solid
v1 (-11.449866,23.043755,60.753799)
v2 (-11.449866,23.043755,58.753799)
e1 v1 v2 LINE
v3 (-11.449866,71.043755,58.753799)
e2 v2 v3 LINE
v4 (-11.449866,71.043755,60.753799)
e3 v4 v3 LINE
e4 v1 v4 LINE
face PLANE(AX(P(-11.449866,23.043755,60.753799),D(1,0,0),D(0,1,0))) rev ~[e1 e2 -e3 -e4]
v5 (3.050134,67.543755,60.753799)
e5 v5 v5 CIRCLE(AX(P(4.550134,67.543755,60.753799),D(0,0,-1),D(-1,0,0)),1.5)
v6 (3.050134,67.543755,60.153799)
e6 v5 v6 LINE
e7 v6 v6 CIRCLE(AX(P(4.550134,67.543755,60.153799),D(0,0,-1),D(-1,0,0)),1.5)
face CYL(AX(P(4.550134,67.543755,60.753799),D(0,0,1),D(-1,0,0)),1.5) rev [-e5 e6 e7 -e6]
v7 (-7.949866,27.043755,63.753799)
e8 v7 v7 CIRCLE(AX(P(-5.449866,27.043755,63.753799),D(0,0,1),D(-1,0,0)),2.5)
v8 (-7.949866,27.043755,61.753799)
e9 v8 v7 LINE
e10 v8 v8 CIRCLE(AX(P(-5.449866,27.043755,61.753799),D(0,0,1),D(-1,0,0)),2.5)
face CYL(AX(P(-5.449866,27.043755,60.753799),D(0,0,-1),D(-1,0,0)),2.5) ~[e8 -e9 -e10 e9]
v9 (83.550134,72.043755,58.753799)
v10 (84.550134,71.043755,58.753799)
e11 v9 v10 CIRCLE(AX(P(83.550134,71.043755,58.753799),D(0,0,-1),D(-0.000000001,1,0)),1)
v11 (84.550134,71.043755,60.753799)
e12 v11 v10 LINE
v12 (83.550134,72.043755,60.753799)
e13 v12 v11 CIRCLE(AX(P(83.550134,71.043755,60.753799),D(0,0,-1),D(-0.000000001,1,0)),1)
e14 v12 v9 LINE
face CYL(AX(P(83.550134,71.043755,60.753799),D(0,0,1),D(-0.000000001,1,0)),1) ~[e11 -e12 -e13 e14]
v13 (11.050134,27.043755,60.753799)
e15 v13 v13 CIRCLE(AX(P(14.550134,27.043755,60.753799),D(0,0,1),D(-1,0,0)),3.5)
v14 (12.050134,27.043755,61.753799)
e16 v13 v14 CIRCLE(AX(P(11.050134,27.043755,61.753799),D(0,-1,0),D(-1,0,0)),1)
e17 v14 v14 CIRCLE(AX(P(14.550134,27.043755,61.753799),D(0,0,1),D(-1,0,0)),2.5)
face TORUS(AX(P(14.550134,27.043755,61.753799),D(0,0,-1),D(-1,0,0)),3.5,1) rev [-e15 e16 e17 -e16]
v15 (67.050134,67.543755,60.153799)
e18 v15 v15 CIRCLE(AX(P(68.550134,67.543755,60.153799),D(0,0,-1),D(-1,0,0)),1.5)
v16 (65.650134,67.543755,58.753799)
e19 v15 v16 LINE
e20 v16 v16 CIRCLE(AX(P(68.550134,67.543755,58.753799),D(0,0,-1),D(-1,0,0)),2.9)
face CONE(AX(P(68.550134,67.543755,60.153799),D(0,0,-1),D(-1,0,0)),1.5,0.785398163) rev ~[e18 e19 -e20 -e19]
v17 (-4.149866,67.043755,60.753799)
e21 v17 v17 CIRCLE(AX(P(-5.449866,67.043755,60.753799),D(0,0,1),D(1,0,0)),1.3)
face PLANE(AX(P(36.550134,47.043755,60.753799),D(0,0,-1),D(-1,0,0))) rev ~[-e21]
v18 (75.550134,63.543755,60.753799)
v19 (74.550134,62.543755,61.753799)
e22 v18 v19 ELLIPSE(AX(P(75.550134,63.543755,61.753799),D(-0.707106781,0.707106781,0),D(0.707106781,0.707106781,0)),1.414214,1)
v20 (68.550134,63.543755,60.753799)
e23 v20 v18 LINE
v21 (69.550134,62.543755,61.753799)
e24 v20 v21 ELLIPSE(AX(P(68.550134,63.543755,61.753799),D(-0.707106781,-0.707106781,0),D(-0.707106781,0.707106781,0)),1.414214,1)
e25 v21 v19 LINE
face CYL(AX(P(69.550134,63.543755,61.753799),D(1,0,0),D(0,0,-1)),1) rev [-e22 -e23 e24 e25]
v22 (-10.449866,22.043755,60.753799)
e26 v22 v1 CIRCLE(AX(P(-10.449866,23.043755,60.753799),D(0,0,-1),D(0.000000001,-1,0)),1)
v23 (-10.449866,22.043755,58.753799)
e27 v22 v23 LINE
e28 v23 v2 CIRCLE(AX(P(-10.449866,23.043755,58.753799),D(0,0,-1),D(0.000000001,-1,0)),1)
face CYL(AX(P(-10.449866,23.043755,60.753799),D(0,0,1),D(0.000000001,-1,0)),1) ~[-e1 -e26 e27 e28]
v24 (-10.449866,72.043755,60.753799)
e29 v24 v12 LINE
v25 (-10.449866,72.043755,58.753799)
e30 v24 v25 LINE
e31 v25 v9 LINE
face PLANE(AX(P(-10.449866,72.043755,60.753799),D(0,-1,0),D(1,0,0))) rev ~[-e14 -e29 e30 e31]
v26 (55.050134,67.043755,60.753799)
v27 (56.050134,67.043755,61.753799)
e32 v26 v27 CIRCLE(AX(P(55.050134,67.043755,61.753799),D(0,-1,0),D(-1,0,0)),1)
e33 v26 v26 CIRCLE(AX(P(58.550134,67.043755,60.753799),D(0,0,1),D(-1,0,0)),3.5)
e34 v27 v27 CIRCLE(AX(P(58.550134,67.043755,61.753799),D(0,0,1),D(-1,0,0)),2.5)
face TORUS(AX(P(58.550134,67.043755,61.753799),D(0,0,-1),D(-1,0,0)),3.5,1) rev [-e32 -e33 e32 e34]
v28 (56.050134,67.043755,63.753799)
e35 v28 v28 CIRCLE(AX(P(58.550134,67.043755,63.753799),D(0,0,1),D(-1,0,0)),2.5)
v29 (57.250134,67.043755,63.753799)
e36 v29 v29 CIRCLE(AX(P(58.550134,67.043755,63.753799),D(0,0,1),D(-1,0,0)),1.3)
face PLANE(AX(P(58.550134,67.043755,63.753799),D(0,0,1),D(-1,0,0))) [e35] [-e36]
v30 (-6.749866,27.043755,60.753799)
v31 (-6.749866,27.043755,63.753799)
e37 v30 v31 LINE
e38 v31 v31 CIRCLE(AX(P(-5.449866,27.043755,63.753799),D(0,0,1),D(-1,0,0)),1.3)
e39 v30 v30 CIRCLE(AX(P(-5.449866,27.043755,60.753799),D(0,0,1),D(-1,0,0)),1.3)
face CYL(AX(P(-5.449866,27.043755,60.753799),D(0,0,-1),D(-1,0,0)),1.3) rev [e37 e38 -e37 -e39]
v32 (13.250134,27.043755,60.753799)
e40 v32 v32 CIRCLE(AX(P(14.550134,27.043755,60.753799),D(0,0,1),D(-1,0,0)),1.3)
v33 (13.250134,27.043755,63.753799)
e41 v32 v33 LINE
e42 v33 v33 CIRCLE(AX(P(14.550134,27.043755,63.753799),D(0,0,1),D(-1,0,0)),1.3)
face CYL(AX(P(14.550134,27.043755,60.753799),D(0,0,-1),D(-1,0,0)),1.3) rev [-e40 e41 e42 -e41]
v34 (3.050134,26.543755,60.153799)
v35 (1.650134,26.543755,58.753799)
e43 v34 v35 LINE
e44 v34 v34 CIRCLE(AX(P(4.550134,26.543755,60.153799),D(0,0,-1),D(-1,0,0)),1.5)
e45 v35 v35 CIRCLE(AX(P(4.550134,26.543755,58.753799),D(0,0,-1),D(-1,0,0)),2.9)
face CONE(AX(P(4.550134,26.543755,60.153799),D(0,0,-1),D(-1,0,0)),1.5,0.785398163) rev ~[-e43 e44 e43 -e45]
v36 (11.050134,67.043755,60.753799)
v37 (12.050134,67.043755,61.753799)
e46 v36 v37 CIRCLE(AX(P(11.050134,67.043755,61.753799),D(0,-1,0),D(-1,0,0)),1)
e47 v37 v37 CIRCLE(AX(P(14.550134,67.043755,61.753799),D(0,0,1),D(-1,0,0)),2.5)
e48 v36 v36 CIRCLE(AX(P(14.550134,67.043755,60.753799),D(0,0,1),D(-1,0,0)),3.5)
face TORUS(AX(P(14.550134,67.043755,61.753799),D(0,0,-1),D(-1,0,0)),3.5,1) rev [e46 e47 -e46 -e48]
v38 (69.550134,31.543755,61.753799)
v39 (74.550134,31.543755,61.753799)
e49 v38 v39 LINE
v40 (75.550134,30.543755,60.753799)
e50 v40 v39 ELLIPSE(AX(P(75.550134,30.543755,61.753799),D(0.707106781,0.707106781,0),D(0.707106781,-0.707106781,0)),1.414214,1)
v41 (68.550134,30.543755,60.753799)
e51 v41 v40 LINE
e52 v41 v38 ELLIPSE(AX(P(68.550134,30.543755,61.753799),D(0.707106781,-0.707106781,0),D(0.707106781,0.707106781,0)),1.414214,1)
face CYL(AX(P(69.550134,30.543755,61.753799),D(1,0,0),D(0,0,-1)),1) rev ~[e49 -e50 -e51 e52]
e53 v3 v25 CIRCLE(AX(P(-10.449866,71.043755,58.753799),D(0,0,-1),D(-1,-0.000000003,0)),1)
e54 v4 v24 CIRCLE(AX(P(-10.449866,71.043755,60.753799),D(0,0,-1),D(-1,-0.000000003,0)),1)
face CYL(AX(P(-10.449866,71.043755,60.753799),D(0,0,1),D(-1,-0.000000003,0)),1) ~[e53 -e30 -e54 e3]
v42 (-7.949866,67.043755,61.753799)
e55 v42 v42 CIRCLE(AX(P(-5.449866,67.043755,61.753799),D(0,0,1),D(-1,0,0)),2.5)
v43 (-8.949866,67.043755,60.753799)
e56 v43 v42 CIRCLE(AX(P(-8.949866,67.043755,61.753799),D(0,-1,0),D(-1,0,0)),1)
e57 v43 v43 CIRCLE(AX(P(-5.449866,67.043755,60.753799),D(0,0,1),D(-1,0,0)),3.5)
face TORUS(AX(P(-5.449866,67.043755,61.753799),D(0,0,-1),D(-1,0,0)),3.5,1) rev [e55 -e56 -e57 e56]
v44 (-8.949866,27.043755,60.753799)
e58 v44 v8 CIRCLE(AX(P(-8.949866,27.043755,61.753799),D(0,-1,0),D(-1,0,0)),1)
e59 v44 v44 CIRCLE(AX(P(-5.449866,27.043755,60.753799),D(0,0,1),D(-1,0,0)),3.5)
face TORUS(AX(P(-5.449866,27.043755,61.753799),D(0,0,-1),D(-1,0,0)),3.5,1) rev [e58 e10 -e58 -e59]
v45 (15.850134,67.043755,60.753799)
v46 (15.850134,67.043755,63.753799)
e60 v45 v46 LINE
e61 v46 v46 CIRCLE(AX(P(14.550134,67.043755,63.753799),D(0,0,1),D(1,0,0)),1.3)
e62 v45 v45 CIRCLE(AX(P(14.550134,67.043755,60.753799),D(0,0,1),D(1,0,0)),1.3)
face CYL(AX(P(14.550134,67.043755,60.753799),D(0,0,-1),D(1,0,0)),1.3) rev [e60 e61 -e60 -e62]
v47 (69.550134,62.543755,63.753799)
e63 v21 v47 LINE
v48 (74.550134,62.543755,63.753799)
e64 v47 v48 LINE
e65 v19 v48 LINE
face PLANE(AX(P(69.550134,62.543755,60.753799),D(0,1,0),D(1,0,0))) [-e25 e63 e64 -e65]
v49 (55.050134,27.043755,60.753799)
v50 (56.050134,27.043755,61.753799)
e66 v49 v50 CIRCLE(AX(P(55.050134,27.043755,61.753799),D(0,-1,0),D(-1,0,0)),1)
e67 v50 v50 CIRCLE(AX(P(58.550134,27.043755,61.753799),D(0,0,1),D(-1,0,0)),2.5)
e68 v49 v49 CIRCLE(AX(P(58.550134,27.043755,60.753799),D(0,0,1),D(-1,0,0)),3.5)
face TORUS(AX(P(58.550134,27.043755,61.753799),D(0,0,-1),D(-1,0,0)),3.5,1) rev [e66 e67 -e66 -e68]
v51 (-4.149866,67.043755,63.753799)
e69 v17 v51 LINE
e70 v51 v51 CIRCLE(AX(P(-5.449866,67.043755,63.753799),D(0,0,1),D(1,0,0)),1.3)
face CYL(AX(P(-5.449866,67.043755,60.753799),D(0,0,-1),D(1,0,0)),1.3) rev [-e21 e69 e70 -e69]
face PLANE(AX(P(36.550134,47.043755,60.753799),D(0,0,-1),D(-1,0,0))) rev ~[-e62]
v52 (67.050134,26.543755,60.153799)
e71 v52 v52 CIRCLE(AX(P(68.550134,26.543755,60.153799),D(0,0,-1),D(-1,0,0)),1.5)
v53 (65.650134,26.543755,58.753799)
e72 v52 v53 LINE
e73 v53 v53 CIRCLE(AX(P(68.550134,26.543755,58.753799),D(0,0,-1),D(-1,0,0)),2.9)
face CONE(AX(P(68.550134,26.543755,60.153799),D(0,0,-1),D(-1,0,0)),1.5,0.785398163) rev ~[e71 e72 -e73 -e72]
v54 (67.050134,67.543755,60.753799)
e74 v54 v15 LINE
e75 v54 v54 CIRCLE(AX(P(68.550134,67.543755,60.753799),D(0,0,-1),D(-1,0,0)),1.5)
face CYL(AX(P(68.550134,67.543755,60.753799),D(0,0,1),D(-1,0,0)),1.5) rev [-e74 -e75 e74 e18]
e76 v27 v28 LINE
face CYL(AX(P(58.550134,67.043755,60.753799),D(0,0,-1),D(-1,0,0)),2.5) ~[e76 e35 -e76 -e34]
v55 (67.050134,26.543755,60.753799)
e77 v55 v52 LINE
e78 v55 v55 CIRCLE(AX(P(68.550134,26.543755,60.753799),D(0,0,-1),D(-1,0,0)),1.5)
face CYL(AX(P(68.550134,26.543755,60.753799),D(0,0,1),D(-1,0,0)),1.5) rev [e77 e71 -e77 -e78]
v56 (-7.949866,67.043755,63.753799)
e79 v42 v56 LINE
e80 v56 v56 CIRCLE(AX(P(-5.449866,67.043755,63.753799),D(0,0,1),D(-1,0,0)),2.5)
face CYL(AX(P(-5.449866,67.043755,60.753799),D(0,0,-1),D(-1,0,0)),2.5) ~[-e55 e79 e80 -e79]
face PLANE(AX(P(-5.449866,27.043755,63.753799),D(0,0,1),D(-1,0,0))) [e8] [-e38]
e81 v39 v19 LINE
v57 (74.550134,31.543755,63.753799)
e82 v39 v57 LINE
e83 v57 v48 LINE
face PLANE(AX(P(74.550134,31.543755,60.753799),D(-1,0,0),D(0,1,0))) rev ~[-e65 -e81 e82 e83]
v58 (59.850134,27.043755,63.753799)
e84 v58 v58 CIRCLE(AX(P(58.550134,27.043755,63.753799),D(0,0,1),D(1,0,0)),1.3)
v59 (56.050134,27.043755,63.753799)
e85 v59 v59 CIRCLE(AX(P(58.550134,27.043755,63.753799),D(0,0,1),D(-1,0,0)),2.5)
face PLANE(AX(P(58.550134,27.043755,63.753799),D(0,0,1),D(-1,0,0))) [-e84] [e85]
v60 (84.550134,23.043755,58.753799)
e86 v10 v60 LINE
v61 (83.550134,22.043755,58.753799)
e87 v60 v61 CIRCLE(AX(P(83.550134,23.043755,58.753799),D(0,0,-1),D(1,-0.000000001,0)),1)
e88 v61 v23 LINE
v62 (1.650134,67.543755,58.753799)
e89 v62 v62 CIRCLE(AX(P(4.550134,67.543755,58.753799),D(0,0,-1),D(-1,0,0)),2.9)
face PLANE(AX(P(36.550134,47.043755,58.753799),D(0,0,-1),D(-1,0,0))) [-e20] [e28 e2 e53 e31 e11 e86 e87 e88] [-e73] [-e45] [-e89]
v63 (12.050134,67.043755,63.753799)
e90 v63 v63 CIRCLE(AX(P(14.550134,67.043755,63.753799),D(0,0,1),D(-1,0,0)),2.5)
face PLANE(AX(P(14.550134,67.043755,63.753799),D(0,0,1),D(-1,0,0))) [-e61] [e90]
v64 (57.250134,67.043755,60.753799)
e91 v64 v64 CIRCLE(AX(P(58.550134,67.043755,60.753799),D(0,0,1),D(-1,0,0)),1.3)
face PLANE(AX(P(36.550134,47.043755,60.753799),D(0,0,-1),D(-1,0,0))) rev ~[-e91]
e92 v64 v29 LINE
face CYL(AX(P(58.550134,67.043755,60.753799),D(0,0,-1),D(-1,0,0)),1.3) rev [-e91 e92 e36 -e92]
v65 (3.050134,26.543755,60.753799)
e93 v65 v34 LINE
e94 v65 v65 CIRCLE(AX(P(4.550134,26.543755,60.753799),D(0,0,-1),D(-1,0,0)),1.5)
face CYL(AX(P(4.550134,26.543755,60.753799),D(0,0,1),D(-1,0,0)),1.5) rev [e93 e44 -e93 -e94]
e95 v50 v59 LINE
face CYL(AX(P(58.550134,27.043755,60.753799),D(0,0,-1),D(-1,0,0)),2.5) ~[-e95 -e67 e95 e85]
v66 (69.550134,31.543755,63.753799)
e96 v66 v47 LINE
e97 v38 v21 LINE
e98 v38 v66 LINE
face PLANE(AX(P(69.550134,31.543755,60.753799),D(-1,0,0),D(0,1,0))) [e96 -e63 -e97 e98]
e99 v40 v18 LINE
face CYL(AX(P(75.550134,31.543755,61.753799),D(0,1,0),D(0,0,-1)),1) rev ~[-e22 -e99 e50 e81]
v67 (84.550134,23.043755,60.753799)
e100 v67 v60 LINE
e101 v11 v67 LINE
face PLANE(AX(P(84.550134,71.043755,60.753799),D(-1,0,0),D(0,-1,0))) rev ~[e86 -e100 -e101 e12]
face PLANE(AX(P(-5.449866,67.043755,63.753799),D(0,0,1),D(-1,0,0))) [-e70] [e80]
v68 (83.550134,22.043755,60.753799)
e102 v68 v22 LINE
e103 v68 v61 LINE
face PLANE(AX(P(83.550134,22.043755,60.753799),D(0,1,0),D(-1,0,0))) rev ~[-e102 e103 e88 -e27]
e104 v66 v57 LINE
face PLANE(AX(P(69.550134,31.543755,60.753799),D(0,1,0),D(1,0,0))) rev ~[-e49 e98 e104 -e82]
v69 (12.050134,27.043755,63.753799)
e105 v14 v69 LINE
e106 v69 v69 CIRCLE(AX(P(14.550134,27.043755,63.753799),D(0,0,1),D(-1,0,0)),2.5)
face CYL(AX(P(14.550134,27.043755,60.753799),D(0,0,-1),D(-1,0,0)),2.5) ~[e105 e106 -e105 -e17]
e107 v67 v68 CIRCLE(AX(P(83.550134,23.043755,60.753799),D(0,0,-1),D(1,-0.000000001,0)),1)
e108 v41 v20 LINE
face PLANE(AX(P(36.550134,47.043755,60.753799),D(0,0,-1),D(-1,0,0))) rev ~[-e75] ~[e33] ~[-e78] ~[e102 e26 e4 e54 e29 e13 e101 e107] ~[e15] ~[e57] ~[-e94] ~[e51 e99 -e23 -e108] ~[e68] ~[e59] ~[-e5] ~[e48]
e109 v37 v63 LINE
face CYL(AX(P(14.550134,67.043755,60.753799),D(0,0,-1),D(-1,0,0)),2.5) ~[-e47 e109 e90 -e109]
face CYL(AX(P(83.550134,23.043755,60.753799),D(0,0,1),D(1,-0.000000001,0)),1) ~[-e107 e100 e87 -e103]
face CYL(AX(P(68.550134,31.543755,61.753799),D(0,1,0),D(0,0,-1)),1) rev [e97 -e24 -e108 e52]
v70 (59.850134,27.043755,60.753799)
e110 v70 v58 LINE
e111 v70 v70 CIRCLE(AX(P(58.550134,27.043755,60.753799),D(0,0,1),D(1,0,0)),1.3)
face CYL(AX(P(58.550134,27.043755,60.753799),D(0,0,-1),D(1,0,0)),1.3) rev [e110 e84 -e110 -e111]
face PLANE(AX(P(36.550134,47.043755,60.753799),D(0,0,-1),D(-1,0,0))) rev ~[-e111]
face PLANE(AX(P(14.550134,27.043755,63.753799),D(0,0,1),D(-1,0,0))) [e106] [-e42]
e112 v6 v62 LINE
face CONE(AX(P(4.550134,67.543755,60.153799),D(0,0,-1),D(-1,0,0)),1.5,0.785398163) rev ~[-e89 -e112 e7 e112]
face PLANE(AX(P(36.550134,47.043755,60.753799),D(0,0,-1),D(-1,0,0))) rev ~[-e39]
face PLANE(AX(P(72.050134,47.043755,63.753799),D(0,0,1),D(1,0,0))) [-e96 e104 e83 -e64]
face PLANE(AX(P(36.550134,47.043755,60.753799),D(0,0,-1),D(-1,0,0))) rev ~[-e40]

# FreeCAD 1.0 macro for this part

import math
import FreeCAD as App
import Part
import Sketcher


def edges_at(feature, points):
    """Names of the edges that pass closest to the given points."""
    edges = feature.Shape.Edges
    near = lambda p: min(range(len(edges)), key=lambda i: edges[i].distToShape(Part.Vertex(*p))[0])
    return sorted({f"Edge{near(p) + 1}" for p in points})


def add_polygon(sketch, points):
    """Adds a closed chain of lines whose ends are joined by coincident constraints."""
    first, n = sketch.GeometryCount, len(points)
    for a, b in zip(points, points[1:] + points[:1]):
        sketch.addGeometry(Part.LineSegment(App.Vector(*a, 0), App.Vector(*b, 0)), False)
    for i in range(n):
        sketch.addConstraint(Sketcher.Constraint("Coincident", first + i, 2, first + (i + 1) % n, 1))

doc = App.newDocument("Part")
params = doc.addObject("Spreadsheet::Sheet", "Params")
for row, (alias, value) in enumerate([
    ("sketch1_diameter", "3 mm"),
    ("sketch1_radius", "1 mm"),
    ("sketch1_width", "94 mm"),
    ("sketch1_height", "48 mm"),
    ("pad1_length", "2 mm"),
    ("chamfer_size", "1.4 mm"),
    ("sketch2_diameter", "5 mm"),
    ("sketch2_diameter2", "2.6 mm"),
    ("sketch2_width", "5 mm"),
    ("sketch2_height", "31 mm"),
    ("pad2_length", "3 mm"),
    ("fillet_radius", "1 mm"),
], start=1):
    params.set(f"A{row}", alias)
    params.set(f"B{row}", "=" + value)
    params.setAlias(f"B{row}", alias)

body = doc.addObject("PartDesign::Body", "Body")

# Sketch on XY plane
sketch1 = doc.addObject("Sketcher::SketchObject", "Sketch")
body.addObject(sketch1)
sketch1.AttachmentSupport = (doc.XY_Plane, [""])
sketch1.MapMode = "FlatFace"
sketch1.AttachmentOffset = App.Placement(App.Vector(0, 0, 60.753799), App.Rotation())
sketch1.addGeometry([
    Part.ArcOfCircle(Part.Circle(App.Vector(83.6, 23, 0), App.Vector(0, 0, 1), 1), math.radians(-90), math.radians(0)),  # 0
    Part.LineSegment(App.Vector(83.6, 22, 0), App.Vector(-10.4, 22, 0)),  # 1
    Part.ArcOfCircle(Part.Circle(App.Vector(-10.4, 23, 0), App.Vector(0, 0, 1), 1), math.radians(180), math.radians(270)),  # 2
    Part.LineSegment(App.Vector(-11.4, 23, 0), App.Vector(-11.4, 71, 0)),  # 3
    Part.ArcOfCircle(Part.Circle(App.Vector(-10.4, 71, 0), App.Vector(0, 0, 1), 1), math.radians(90), math.radians(180)),  # 4
    Part.LineSegment(App.Vector(-10.4, 72, 0), App.Vector(83.6, 72, 0)),  # 5
    Part.ArcOfCircle(Part.Circle(App.Vector(83.6, 71, 0), App.Vector(0, 0, 1), 1), math.radians(0), math.radians(90)),  # 6
    Part.LineSegment(App.Vector(84.6, 71, 0), App.Vector(84.6, 23, 0)),  # 7
    Part.Circle(App.Vector(68.6, 26.5, 0), App.Vector(0, 0, 1), 1.5),  # 8
    Part.Circle(App.Vector(4.6, 26.5, 0), App.Vector(0, 0, 1), 1.5),  # 9
    Part.Circle(App.Vector(68.6, 67.5, 0), App.Vector(0, 0, 1), 1.5),  # 10
    Part.Circle(App.Vector(4.6, 67.5, 0), App.Vector(0, 0, 1), 1.5),  # 11
], False)
sketch1.addConstraint([
    Sketcher.Constraint("Tangent", 0, 1, 1, 1),
    Sketcher.Constraint("Tangent", 1, 2, 2, 2),
    Sketcher.Constraint("Tangent", 2, 1, 3, 1),
    Sketcher.Constraint("Tangent", 3, 2, 4, 2),
    Sketcher.Constraint("Tangent", 4, 1, 5, 1),
    Sketcher.Constraint("Tangent", 5, 2, 6, 2),
    Sketcher.Constraint("Tangent", 6, 1, 7, 1),
    Sketcher.Constraint("Tangent", 7, 2, 0, 2),
    Sketcher.Constraint("Horizontal", 1),
    Sketcher.Constraint("Vertical", 3),
    Sketcher.Constraint("Horizontal", 5),
    Sketcher.Constraint("Vertical", 7),
    Sketcher.Constraint("Equal", 0, 2),
    Sketcher.Constraint("Equal", 2, 4),
    Sketcher.Constraint("Equal", 4, 6),
    Sketcher.Constraint("Equal", 8, 9),
    Sketcher.Constraint("Equal", 9, 10),
    Sketcher.Constraint("Equal", 10, 11),
    Sketcher.Constraint("Horizontal", 8, 3, 9, 3),
    Sketcher.Constraint("Horizontal", 10, 3, 11, 3),
    Sketcher.Constraint("Vertical", 8, 3, 10, 3),
    Sketcher.Constraint("Vertical", 9, 3, 11, 3),
    Sketcher.Constraint("Diameter", 8, 3.0),
    Sketcher.Constraint("Radius", 0, 1.0),
    Sketcher.Constraint("DistanceX", 1, 2, 1, 1, 94.0),
    Sketcher.Constraint("DistanceY", 3, 1, 3, 2, 48.0),
    Sketcher.Constraint("DistanceX", 8, 3, 0, 3, 15.0),
    Sketcher.Constraint("DistanceX", 2, 3, 9, 3, 15.0),
    Sketcher.Constraint("DistanceY", 8, 3, 10, 3, 41.0),
    Sketcher.Constraint("DistanceY", 0, 3, 8, 3, 3.5),
    Sketcher.Constraint("DistanceX", -1, 1, 0, 3, 83.550134),
    Sketcher.Constraint("DistanceY", -1, 1, 0, 3, 23.043755),
])
sketch1.setExpression("Constraints[22]", "Params.sketch1_diameter")
sketch1.setExpression("Constraints[23]", "Params.sketch1_radius")
sketch1.setExpression("Constraints[24]", "Params.sketch1_width")
sketch1.setExpression("Constraints[25]", "Params.sketch1_height")
pad1 = doc.addObject("PartDesign::Pad", "Pad")
body.addObject(pad1)
pad1.Profile = sketch1
pad1.setExpression("Length", "Params.pad1_length")
pad1.Reversed = True
doc.recompute()

chamfer = doc.addObject("PartDesign::Chamfer", "Chamfer")
body.addObject(chamfer)
chamfer.Base = (pad1, edges_at(pad1, [
    (6.05, 67.544, 58.754),
    (70.05, 67.544, 58.754),
    (70.05, 26.544, 58.754),
    (6.05, 26.544, 58.754),
]))
chamfer.setExpression("Size", "Params.chamfer_size")

# Sketch on XY plane
sketch2 = doc.addObject("Sketcher::SketchObject", "Sketch001")
body.addObject(sketch2)
sketch2.AttachmentSupport = (doc.XY_Plane, [""])
sketch2.MapMode = "FlatFace"
sketch2.AttachmentOffset = App.Placement(App.Vector(0, 0, 60.753799), App.Rotation())
sketch2.addGeometry(Part.Circle(App.Vector(14.6, 67, 0), App.Vector(0, 0, 1), 2.5), False)  # 0
sketch2.addGeometry(Part.Circle(App.Vector(14.6, 67, 0), App.Vector(0, 0, 1), 1.3), False)  # 1
sketch2.addGeometry(Part.Circle(App.Vector(58.6, 67, 0), App.Vector(0, 0, 1), 2.5), False)  # 2
sketch2.addGeometry(Part.Circle(App.Vector(58.6, 67, 0), App.Vector(0, 0, 1), 1.3), False)  # 3
sketch2.addGeometry(Part.Circle(App.Vector(58.6, 27, 0), App.Vector(0, 0, 1), 2.5), False)  # 4
sketch2.addGeometry(Part.Circle(App.Vector(58.6, 27, 0), App.Vector(0, 0, 1), 1.3), False)  # 5
sketch2.addGeometry(Part.Circle(App.Vector(14.6, 27, 0), App.Vector(0, 0, 1), 2.5), False)  # 6
sketch2.addGeometry(Part.Circle(App.Vector(14.6, 27, 0), App.Vector(0, 0, 1), 1.3), False)  # 7
sketch2.addGeometry(Part.Circle(App.Vector(-5.4, 67, 0), App.Vector(0, 0, 1), 2.5), False)  # 8
sketch2.addGeometry(Part.Circle(App.Vector(-5.4, 67, 0), App.Vector(0, 0, 1), 1.3), False)  # 9
sketch2.addGeometry(Part.Circle(App.Vector(-5.4, 27, 0), App.Vector(0, 0, 1), 2.5), False)  # 10
sketch2.addGeometry(Part.Circle(App.Vector(-5.4, 27, 0), App.Vector(0, 0, 1), 1.3), False)  # 11
add_polygon(sketch2, [(69.6, 62.5), (69.6, 31.5), (74.6, 31.5), (74.6, 62.5)])  # lines 12-15
sketch2.addConstraint([
    Sketcher.Constraint("Vertical", 12),
    Sketcher.Constraint("Horizontal", 13),
    Sketcher.Constraint("Vertical", 14),
    Sketcher.Constraint("Horizontal", 15),
    Sketcher.Constraint("Coincident", 1, 3, 0, 3),
    Sketcher.Constraint("Coincident", 3, 3, 2, 3),
    Sketcher.Constraint("Coincident", 5, 3, 4, 3),
    Sketcher.Constraint("Coincident", 7, 3, 6, 3),
    Sketcher.Constraint("Coincident", 9, 3, 8, 3),
    Sketcher.Constraint("Coincident", 11, 3, 10, 3),
    Sketcher.Constraint("Equal", 0, 2),
    Sketcher.Constraint("Equal", 1, 3),
    Sketcher.Constraint("Equal", 2, 4),
    Sketcher.Constraint("Equal", 3, 5),
    Sketcher.Constraint("Equal", 4, 6),
    Sketcher.Constraint("Equal", 5, 7),
    Sketcher.Constraint("Equal", 6, 8),
    Sketcher.Constraint("Equal", 7, 9),
    Sketcher.Constraint("Equal", 8, 10),
    Sketcher.Constraint("Equal", 9, 11),
    Sketcher.Constraint("Horizontal", 1, 3, 2, 3),
    Sketcher.Constraint("Horizontal", 5, 3, 6, 3),
    Sketcher.Constraint("Horizontal", 3, 3, 8, 3),
    Sketcher.Constraint("Horizontal", 7, 3, 10, 3),
    Sketcher.Constraint("Vertical", 3, 3, 4, 3),
    Sketcher.Constraint("Vertical", 1, 3, 6, 3),
    Sketcher.Constraint("Vertical", 9, 3, 10, 3),
    Sketcher.Constraint("Diameter", 0, 5.0),
    Sketcher.Constraint("Diameter", 1, 2.6),
    Sketcher.Constraint("DistanceX", 13, 1, 13, 2, 5.0),
    Sketcher.Constraint("DistanceY", 12, 2, 12, 1, 31.0),
    Sketcher.Constraint("DistanceX", 0, 3, 2, 3, 44.0),
    Sketcher.Constraint("DistanceY", 4, 3, 2, 3, 40.0),
    Sketcher.Constraint("DistanceX", 8, 3, 0, 3, 20.0),
    Sketcher.Constraint("DistanceX", 4, 3, 12, 2, 11.0),
    Sketcher.Constraint("DistanceY", 4, 3, 12, 2, 4.5),
    Sketcher.Constraint("DistanceX", -1, 1, 0, 3, 14.550134),
    Sketcher.Constraint("DistanceY", -1, 1, 0, 3, 67.043755),
])
sketch2.setExpression("Constraints[31]", "Params.sketch2_diameter")
sketch2.setExpression("Constraints[32]", "Params.sketch2_diameter2")
sketch2.setExpression("Constraints[33]", "Params.sketch2_width")
sketch2.setExpression("Constraints[34]", "Params.sketch2_height")
pad2 = doc.addObject("PartDesign::Pad", "Pad001")
body.addObject(pad2)
pad2.Profile = sketch2
pad2.setExpression("Length", "Params.pad2_length")
doc.recompute()

fillet = doc.addObject("PartDesign::Fillet", "Fillet")
body.addObject(fillet)
fillet.Base = (pad2, edges_at(pad2, [
    (-2.95, 67.044, 60.754),
    (-2.95, 27.044, 60.754),
    (69.55, 47.044, 60.754),
    (72.05, 31.544, 60.754),
    (74.55, 47.044, 60.754),
    (72.05, 62.544, 60.754),
    (17.05, 67.044, 60.754),
    (61.05, 67.044, 60.754),
    (61.05, 27.044, 60.754),
    (17.05, 27.044, 60.754),
]))
fillet.setExpression("Radius", "Params.fillet_radius")

doc.recompute()
